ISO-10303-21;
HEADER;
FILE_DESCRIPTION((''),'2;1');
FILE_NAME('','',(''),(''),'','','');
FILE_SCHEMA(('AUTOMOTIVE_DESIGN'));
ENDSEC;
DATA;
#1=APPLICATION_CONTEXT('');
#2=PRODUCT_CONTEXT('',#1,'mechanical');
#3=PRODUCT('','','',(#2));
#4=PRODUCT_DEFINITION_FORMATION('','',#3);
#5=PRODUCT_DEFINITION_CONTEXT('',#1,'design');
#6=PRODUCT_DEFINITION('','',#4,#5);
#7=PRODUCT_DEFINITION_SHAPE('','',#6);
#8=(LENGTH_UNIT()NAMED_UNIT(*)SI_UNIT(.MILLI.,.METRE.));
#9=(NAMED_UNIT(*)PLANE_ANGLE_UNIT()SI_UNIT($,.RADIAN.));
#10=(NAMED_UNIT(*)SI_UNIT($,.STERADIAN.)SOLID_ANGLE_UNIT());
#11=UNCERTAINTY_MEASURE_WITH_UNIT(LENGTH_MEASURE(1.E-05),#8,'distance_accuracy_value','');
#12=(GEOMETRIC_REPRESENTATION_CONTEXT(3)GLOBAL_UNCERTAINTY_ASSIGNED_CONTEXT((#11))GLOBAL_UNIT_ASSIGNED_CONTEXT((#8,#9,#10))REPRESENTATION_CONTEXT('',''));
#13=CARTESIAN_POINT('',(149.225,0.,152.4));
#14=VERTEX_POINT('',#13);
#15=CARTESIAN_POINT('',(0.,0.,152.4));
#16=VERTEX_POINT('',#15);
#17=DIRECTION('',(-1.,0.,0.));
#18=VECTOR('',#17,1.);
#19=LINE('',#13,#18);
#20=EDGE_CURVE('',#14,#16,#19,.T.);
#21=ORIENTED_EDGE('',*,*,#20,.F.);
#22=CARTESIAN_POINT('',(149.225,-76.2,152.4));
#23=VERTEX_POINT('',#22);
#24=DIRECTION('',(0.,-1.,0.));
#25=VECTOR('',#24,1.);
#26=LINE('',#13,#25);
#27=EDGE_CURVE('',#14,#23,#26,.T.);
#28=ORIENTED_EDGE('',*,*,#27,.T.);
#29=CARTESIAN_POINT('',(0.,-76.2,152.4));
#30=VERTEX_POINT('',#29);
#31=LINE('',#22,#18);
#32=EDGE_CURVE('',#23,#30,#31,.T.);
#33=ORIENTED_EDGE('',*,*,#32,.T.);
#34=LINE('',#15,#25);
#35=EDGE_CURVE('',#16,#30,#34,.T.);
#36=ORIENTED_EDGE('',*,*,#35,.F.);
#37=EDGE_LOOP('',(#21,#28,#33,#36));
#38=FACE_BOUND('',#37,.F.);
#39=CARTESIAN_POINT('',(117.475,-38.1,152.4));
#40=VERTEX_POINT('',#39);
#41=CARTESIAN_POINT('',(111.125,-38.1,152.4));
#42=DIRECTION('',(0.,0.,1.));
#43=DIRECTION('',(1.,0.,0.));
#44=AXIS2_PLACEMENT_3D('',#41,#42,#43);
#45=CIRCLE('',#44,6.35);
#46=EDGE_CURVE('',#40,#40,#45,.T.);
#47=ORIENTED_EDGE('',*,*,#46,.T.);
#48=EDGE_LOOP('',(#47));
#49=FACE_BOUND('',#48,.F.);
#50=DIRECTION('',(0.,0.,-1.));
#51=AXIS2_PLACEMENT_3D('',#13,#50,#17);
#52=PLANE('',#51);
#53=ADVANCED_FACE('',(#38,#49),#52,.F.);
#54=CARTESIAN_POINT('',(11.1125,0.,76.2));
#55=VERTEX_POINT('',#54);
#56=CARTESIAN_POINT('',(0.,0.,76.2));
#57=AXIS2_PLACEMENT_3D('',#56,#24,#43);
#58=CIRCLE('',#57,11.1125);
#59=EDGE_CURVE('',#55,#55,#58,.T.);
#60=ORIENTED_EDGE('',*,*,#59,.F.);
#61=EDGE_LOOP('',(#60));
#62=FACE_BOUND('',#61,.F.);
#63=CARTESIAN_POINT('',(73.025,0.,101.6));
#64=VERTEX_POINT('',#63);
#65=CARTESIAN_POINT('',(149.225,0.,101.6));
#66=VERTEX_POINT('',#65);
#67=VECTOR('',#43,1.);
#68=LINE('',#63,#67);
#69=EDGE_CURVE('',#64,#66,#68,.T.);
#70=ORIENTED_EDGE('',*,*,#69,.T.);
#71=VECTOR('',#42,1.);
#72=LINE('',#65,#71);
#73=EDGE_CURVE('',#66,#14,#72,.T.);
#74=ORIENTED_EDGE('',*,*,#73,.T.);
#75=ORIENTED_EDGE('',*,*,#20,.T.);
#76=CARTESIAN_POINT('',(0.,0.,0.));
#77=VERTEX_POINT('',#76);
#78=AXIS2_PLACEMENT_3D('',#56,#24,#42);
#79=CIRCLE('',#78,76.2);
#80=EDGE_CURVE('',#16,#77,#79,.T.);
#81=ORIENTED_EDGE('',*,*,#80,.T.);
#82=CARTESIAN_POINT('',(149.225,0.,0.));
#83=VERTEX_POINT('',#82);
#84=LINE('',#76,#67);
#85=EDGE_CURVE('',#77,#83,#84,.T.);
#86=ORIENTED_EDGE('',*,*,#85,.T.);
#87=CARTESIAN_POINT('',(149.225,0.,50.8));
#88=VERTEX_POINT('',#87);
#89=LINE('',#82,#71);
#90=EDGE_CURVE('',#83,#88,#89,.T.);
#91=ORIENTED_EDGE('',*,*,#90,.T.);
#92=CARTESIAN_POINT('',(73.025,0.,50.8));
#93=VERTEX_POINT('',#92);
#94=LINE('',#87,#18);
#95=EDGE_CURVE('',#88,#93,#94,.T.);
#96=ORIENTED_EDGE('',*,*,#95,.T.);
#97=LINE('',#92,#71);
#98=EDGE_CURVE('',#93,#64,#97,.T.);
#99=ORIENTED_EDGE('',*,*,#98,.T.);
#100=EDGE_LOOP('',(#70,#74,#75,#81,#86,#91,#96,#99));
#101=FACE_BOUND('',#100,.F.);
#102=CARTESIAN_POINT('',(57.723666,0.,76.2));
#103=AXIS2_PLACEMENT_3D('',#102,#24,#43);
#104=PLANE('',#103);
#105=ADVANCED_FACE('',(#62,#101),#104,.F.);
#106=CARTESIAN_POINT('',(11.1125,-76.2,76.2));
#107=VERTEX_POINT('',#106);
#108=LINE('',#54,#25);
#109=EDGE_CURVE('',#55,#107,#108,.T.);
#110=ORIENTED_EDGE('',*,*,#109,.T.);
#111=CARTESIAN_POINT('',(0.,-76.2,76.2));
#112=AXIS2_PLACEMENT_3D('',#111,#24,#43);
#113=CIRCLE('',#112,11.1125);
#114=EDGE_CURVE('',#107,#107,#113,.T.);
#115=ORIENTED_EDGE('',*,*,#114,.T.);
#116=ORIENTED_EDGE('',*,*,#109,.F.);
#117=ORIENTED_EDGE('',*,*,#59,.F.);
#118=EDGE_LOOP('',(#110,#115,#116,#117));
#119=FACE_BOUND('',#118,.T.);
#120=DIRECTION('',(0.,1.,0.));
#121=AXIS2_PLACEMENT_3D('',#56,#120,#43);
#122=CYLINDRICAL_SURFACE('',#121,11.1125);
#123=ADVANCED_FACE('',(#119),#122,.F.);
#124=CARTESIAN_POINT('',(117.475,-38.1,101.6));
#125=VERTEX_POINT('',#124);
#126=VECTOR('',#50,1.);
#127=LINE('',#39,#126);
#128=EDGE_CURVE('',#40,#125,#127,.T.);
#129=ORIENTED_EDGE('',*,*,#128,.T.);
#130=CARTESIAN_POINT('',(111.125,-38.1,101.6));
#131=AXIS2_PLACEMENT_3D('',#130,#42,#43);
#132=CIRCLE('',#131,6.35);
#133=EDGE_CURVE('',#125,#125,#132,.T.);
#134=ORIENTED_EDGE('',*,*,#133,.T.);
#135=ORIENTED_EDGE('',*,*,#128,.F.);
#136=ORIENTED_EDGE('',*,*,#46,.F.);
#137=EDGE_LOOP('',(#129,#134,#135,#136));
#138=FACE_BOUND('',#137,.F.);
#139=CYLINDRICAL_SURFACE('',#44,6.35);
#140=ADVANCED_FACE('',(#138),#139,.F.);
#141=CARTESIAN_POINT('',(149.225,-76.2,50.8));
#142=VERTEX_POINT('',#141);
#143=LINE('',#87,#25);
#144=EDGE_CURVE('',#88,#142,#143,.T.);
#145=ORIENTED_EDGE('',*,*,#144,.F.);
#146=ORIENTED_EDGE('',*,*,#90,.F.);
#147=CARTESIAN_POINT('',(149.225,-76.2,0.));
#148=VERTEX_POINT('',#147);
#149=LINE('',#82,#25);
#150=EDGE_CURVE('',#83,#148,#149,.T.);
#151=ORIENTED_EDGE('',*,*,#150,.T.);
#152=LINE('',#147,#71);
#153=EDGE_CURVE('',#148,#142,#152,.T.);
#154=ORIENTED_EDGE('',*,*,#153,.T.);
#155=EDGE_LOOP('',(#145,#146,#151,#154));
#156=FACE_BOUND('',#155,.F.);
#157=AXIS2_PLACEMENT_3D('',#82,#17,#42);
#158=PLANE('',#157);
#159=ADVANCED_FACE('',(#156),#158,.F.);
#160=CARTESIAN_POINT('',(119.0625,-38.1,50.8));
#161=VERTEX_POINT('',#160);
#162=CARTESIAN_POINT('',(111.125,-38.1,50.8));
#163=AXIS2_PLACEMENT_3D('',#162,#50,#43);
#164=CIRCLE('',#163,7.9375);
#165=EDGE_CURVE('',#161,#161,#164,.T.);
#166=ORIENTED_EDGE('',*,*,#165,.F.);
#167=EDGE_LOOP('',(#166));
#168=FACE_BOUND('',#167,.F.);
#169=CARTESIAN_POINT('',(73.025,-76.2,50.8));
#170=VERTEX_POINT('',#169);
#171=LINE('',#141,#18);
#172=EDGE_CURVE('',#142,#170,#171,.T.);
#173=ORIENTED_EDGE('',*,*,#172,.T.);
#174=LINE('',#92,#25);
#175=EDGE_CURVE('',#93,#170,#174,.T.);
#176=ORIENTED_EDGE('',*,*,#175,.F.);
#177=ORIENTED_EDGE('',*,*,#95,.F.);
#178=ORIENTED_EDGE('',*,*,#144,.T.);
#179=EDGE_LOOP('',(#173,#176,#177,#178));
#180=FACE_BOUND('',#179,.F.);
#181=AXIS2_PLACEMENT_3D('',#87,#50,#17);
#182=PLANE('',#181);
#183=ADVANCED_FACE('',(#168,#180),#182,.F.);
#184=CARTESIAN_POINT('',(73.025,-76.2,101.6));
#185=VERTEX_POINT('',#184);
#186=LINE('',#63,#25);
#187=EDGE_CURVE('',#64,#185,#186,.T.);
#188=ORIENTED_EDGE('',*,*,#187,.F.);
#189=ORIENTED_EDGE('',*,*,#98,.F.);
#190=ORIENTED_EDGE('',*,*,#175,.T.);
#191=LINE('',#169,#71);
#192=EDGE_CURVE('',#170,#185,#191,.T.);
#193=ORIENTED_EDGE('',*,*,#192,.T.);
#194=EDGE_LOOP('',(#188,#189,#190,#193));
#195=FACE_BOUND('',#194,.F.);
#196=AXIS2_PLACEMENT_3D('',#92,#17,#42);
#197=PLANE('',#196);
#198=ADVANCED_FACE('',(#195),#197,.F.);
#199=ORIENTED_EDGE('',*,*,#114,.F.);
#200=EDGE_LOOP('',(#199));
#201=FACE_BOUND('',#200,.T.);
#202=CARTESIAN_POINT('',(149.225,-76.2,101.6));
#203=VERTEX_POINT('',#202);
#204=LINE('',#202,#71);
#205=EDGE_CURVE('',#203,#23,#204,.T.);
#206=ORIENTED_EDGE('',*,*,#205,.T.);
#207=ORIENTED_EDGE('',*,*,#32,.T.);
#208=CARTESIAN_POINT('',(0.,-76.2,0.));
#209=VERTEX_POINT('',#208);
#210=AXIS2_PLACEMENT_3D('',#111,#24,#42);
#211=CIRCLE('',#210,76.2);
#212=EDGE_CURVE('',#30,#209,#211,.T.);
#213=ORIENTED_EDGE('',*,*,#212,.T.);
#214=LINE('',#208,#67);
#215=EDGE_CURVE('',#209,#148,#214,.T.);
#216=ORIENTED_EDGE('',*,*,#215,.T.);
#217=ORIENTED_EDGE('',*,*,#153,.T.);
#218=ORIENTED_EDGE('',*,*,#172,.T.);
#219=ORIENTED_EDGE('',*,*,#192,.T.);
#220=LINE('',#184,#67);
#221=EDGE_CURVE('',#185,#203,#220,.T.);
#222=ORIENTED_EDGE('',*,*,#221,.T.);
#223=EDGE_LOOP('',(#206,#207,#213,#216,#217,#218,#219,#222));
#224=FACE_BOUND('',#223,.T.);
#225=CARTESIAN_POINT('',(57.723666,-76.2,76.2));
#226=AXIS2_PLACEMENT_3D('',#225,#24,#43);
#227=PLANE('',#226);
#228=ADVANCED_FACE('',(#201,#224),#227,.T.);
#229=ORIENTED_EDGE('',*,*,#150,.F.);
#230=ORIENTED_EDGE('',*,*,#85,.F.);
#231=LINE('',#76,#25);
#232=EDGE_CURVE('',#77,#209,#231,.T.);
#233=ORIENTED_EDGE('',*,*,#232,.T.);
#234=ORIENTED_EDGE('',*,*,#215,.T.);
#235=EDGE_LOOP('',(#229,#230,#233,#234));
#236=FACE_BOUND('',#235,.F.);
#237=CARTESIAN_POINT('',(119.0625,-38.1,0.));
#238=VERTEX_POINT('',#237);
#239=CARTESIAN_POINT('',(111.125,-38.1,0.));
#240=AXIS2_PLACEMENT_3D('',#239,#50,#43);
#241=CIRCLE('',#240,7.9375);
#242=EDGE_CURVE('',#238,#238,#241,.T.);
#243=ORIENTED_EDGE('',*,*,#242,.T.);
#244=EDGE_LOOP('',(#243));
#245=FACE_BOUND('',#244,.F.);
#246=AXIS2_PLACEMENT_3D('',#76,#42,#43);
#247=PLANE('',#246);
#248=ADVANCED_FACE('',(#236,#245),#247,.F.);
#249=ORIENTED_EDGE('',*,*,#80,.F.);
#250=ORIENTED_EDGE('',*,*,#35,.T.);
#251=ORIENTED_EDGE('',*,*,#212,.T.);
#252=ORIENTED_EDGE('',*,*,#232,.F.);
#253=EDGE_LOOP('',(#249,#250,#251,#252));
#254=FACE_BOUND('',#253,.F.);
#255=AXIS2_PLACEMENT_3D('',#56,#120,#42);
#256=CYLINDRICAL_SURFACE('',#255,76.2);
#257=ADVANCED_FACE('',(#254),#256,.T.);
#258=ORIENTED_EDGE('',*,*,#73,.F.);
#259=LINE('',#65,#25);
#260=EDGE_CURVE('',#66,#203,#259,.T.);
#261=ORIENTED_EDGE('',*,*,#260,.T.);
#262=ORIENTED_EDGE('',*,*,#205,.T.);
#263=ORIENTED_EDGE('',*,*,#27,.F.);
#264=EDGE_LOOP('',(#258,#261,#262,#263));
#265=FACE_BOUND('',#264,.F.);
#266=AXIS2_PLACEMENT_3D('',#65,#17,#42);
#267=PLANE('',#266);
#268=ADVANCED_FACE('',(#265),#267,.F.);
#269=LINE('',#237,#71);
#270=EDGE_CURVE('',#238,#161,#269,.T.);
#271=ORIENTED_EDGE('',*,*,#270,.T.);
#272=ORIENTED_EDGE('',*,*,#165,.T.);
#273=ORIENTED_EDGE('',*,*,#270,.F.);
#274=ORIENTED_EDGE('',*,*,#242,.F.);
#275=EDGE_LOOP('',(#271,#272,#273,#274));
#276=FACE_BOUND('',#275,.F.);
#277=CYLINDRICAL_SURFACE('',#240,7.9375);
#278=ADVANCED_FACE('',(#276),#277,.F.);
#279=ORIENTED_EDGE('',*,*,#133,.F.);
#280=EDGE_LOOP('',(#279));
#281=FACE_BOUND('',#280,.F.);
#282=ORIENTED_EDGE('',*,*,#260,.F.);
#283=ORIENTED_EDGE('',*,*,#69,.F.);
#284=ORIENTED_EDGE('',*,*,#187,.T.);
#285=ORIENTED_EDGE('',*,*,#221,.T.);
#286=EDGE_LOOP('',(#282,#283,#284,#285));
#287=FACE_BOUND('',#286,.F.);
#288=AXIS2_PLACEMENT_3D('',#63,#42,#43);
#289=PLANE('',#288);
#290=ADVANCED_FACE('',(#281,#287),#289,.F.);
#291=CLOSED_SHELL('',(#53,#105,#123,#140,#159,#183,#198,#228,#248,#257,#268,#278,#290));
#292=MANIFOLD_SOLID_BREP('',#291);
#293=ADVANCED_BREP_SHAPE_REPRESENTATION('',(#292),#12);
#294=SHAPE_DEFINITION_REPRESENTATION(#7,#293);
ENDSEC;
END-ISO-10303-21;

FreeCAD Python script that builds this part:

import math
import FreeCAD as App
import Part
import Sketcher
Q = App.Units.Quantity

doc = App.newDocument("Part")
body = doc.addObject("PartDesign::Body", "Body")

sketch1 = body.newObject("Sketcher::SketchObject", "Sketch")
sketch1.AttachmentSupport = (doc.getObject("XZ_Plane"), [""])
sketch1.MapMode = "FlatFace"
sketch1.addGeometry(Part.ArcOfCircle(Part.Circle(App.Vector(0, 76, 0), App.Vector(0, 0, 1), 76), math.radians(90), math.radians(270)), False)
sketch1.addGeometry(Part.LineSegment(App.Vector(0, 0, 0), App.Vector(149, 0, 0)), False)
sketch1.addGeometry(Part.LineSegment(App.Vector(149, 0, 0), App.Vector(149, 51, 0)), False)
sketch1.addGeometry(Part.LineSegment(App.Vector(149, 51, 0), App.Vector(73, 51, 0)), False)
sketch1.addGeometry(Part.LineSegment(App.Vector(73, 51, 0), App.Vector(73, 102, 0)), False)
sketch1.addGeometry(Part.LineSegment(App.Vector(73, 102, 0), App.Vector(149, 102, 0)), False)
sketch1.addGeometry(Part.LineSegment(App.Vector(149, 102, 0), App.Vector(149, 152, 0)), False)
sketch1.addGeometry(Part.LineSegment(App.Vector(149, 152, 0), App.Vector(0, 152, 0)), False)
sketch1.addGeometry(Part.Circle(App.Vector(0, 76, 0), App.Vector(0, 0, 1), 11), False)
sketch1.addConstraint(Sketcher.Constraint("Tangent", 0, 2, 1, 1))
sketch1.addConstraint(Sketcher.Constraint("Coincident", 1, 2, 2, 1))
sketch1.addConstraint(Sketcher.Constraint("Coincident", 2, 2, 3, 1))
sketch1.addConstraint(Sketcher.Constraint("Coincident", 3, 2, 4, 1))
sketch1.addConstraint(Sketcher.Constraint("Coincident", 4, 2, 5, 1))
sketch1.addConstraint(Sketcher.Constraint("Coincident", 5, 2, 6, 1))
sketch1.addConstraint(Sketcher.Constraint("Coincident", 6, 2, 7, 1))
sketch1.addConstraint(Sketcher.Constraint("Tangent", 7, 2, 0, 1))
sketch1.addConstraint(Sketcher.Constraint("Horizontal", 1))
sketch1.addConstraint(Sketcher.Constraint("Vertical", 2))
sketch1.addConstraint(Sketcher.Constraint("Horizontal", 3))
sketch1.addConstraint(Sketcher.Constraint("Vertical", 4))
sketch1.addConstraint(Sketcher.Constraint("Horizontal", 5))
sketch1.addConstraint(Sketcher.Constraint("Vertical", 6))
sketch1.addConstraint(Sketcher.Constraint("Horizontal", 7))
sketch1.addConstraint(Sketcher.Constraint("Coincident", 0, 2, -1, 1))
sketch1.addConstraint(Sketcher.Constraint("Coincident", 8, 3, 0, 3))
sketch1.addConstraint(Sketcher.Constraint("Vertical", 2, 2, 5, 2))
sketch1.addConstraint(Sketcher.Constraint("Equal", 2, 4))
sketch1.addConstraint(Sketcher.Constraint("Equal", 4, 6))
sketch1.addConstraint(Sketcher.Constraint("Radius", 0, Q("3 in")))
sketch1.addConstraint(Sketcher.Constraint("DistanceX", 3, 2, 3, 1, Q("3 in")))
sketch1.addConstraint(Sketcher.Constraint("Diameter", 8, Q("0.875 in")))
sketch1.addConstraint(Sketcher.Constraint("DistanceX", 1, 1, 1, 2, Q("5.875 in")))
pad1 = body.newObject("PartDesign::Pad", "Pad")
pad1.Profile = sketch1
pad1.Length = Q("3 in")

sketch2 = body.newObject("Sketcher::SketchObject", "Sketch001")
sketch2.AttachmentSupport = (doc.getObject("XY_Plane"), [""])
sketch2.MapMode = "FlatFace"
sketch2.addGeometry(Part.Circle(App.Vector(111, -38, 0), App.Vector(0, 0, 1), 8), False)
sketch2.addConstraint(Sketcher.Constraint("Diameter", 0, Q("0.625 in")))
sketch2.addConstraint(Sketcher.Constraint("DistanceY", 0, 3, -1, 1, Q("1.5 in")))
sketch2.addConstraint(Sketcher.Constraint("DistanceX", -1, 1, 0, 3, Q("4.375 in")))
pocket1 = body.newObject("PartDesign::Pocket", "Pocket")
pocket1.Profile = sketch2
pocket1.Length = Q("2 in")
pocket1.Reversed = True

sketch3 = body.newObject("Sketcher::SketchObject", "Sketch002")
sketch3.AttachmentSupport = (doc.getObject("XY_Plane"), [""])
sketch3.MapMode = "FlatFace"
sketch3.AttachmentOffset = App.Placement(App.Vector(0, 0, 6 * 25.4), App.Rotation())
sketch3.addGeometry(Part.Circle(App.Vector(111, -38, 0), App.Vector(0, 0, 1), 6), False)
sketch3.addConstraint(Sketcher.Constraint("Diameter", 0, Q("0.5 in")))
sketch3.addConstraint(Sketcher.Constraint("DistanceY", 0, 3, -1, 1, Q("1.5 in")))
sketch3.addConstraint(Sketcher.Constraint("DistanceX", -1, 1, 0, 3, Q("4.375 in")))
pocket2 = body.newObject("PartDesign::Pocket", "Pocket001")
pocket2.Profile = sketch3
pocket2.Length = Q("2 in")

doc.recompute()
